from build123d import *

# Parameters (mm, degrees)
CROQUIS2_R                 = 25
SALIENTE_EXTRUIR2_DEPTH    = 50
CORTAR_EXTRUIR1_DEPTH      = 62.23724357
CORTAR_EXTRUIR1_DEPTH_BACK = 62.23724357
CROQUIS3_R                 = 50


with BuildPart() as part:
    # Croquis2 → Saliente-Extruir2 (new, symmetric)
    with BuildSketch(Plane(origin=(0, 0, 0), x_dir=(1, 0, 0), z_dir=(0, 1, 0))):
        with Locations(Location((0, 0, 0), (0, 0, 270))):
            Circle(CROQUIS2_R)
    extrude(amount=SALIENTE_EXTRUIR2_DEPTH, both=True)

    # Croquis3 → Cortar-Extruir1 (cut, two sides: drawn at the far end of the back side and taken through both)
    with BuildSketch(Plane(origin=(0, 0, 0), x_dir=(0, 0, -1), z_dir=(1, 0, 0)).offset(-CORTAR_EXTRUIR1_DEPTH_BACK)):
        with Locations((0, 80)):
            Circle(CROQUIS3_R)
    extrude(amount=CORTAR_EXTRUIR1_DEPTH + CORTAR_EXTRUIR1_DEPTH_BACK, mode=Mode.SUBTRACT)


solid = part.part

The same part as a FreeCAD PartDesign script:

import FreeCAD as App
import Part
import Sketcher

V = App.Vector

doc = App.newDocument("Part")
body = doc.addObject("PartDesign::Body", "Body")

# Sketch on XZ plane
sketch1 = doc.addObject("Sketcher::SketchObject", "Sketch")
body.addObject(sketch1)
sketch1.AttachmentSupport = (doc.XZ_Plane, [""])
sketch1.MapMode = "FlatFace"
sketch1.addGeometry(Part.Circle(V(0, 0, 0), V(0, 0, 1), 25), False)
sketch1.addConstraint([
    Sketcher.Constraint("Coincident", 0, 3, -1, 1),
    Sketcher.Constraint("Diameter", 0, 50.0),
])
pad1 = doc.addObject("PartDesign::Pad", "Pad")
body.addObject(pad1)
pad1.Profile = sketch1
pad1.Length = 100
pad1.Midplane = True

# Sketch on YZ plane
sketch2 = doc.addObject("Sketcher::SketchObject", "Sketch001")
body.addObject(sketch2)
sketch2.AttachmentSupport = (doc.YZ_Plane, [""])
sketch2.MapMode = "FlatFace"
sketch2.addGeometry(Part.Circle(V(80, 0, 0), V(0, 0, 1), 50), False)
sketch2.addConstraint([
    Sketcher.Constraint("PointOnObject", 0, 3, -1),
    Sketcher.Constraint("Diameter", 0, 100.0),
    Sketcher.Constraint("DistanceX", -1, 1, 0, 3, 80.0),
])
pocket1 = doc.addObject("PartDesign::Pocket", "Pocket")
body.addObject(pocket1)
pocket1.Profile = sketch2
pocket1.Type = "ThroughAll"
pocket1.Midplane = True

doc.recompute()
